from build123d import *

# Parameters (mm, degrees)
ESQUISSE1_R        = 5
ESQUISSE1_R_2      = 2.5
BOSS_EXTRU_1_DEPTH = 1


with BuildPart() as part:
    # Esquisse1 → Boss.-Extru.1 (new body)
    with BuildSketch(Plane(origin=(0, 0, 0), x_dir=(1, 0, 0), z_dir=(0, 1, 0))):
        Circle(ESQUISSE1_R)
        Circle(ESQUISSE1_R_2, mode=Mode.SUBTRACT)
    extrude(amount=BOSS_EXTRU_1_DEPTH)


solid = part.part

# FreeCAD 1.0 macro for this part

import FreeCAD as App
import Part
import Sketcher
Q = App.Units.Quantity

doc = App.newDocument("Part")
body = doc.addObject("PartDesign::Body", "Body")

# Sketch on XZ plane
sketch1 = body.newObject("Sketcher::SketchObject", "Sketch")
sketch1.AttachmentSupport = (doc.getObject("XZ_Plane"), [""])
sketch1.MapMode = "FlatFace"
sketch1.addGeometry(Part.Circle(App.Vector(0, 0, 0), App.Vector(0, 0, 1), 5), False)
sketch1.addGeometry(Part.Circle(App.Vector(0, 0, 0), App.Vector(0, 0, 1), 2.5), False)
sketch1.addConstraint(Sketcher.Constraint("Coincident", 0, 3, -1, 1))
sketch1.addConstraint(Sketcher.Constraint("Coincident", 1, 3, -1, 1))
sketch1.addConstraint(Sketcher.Constraint("Diameter", 0, Q("10 mm")))
sketch1.addConstraint(Sketcher.Constraint("Diameter", 1, Q("5 mm")))
pad1 = body.newObject("PartDesign::Pad", "Pad")
pad1.Profile = sketch1
pad1.Length = 1
pad1.Reversed = True

doc.recompute()
